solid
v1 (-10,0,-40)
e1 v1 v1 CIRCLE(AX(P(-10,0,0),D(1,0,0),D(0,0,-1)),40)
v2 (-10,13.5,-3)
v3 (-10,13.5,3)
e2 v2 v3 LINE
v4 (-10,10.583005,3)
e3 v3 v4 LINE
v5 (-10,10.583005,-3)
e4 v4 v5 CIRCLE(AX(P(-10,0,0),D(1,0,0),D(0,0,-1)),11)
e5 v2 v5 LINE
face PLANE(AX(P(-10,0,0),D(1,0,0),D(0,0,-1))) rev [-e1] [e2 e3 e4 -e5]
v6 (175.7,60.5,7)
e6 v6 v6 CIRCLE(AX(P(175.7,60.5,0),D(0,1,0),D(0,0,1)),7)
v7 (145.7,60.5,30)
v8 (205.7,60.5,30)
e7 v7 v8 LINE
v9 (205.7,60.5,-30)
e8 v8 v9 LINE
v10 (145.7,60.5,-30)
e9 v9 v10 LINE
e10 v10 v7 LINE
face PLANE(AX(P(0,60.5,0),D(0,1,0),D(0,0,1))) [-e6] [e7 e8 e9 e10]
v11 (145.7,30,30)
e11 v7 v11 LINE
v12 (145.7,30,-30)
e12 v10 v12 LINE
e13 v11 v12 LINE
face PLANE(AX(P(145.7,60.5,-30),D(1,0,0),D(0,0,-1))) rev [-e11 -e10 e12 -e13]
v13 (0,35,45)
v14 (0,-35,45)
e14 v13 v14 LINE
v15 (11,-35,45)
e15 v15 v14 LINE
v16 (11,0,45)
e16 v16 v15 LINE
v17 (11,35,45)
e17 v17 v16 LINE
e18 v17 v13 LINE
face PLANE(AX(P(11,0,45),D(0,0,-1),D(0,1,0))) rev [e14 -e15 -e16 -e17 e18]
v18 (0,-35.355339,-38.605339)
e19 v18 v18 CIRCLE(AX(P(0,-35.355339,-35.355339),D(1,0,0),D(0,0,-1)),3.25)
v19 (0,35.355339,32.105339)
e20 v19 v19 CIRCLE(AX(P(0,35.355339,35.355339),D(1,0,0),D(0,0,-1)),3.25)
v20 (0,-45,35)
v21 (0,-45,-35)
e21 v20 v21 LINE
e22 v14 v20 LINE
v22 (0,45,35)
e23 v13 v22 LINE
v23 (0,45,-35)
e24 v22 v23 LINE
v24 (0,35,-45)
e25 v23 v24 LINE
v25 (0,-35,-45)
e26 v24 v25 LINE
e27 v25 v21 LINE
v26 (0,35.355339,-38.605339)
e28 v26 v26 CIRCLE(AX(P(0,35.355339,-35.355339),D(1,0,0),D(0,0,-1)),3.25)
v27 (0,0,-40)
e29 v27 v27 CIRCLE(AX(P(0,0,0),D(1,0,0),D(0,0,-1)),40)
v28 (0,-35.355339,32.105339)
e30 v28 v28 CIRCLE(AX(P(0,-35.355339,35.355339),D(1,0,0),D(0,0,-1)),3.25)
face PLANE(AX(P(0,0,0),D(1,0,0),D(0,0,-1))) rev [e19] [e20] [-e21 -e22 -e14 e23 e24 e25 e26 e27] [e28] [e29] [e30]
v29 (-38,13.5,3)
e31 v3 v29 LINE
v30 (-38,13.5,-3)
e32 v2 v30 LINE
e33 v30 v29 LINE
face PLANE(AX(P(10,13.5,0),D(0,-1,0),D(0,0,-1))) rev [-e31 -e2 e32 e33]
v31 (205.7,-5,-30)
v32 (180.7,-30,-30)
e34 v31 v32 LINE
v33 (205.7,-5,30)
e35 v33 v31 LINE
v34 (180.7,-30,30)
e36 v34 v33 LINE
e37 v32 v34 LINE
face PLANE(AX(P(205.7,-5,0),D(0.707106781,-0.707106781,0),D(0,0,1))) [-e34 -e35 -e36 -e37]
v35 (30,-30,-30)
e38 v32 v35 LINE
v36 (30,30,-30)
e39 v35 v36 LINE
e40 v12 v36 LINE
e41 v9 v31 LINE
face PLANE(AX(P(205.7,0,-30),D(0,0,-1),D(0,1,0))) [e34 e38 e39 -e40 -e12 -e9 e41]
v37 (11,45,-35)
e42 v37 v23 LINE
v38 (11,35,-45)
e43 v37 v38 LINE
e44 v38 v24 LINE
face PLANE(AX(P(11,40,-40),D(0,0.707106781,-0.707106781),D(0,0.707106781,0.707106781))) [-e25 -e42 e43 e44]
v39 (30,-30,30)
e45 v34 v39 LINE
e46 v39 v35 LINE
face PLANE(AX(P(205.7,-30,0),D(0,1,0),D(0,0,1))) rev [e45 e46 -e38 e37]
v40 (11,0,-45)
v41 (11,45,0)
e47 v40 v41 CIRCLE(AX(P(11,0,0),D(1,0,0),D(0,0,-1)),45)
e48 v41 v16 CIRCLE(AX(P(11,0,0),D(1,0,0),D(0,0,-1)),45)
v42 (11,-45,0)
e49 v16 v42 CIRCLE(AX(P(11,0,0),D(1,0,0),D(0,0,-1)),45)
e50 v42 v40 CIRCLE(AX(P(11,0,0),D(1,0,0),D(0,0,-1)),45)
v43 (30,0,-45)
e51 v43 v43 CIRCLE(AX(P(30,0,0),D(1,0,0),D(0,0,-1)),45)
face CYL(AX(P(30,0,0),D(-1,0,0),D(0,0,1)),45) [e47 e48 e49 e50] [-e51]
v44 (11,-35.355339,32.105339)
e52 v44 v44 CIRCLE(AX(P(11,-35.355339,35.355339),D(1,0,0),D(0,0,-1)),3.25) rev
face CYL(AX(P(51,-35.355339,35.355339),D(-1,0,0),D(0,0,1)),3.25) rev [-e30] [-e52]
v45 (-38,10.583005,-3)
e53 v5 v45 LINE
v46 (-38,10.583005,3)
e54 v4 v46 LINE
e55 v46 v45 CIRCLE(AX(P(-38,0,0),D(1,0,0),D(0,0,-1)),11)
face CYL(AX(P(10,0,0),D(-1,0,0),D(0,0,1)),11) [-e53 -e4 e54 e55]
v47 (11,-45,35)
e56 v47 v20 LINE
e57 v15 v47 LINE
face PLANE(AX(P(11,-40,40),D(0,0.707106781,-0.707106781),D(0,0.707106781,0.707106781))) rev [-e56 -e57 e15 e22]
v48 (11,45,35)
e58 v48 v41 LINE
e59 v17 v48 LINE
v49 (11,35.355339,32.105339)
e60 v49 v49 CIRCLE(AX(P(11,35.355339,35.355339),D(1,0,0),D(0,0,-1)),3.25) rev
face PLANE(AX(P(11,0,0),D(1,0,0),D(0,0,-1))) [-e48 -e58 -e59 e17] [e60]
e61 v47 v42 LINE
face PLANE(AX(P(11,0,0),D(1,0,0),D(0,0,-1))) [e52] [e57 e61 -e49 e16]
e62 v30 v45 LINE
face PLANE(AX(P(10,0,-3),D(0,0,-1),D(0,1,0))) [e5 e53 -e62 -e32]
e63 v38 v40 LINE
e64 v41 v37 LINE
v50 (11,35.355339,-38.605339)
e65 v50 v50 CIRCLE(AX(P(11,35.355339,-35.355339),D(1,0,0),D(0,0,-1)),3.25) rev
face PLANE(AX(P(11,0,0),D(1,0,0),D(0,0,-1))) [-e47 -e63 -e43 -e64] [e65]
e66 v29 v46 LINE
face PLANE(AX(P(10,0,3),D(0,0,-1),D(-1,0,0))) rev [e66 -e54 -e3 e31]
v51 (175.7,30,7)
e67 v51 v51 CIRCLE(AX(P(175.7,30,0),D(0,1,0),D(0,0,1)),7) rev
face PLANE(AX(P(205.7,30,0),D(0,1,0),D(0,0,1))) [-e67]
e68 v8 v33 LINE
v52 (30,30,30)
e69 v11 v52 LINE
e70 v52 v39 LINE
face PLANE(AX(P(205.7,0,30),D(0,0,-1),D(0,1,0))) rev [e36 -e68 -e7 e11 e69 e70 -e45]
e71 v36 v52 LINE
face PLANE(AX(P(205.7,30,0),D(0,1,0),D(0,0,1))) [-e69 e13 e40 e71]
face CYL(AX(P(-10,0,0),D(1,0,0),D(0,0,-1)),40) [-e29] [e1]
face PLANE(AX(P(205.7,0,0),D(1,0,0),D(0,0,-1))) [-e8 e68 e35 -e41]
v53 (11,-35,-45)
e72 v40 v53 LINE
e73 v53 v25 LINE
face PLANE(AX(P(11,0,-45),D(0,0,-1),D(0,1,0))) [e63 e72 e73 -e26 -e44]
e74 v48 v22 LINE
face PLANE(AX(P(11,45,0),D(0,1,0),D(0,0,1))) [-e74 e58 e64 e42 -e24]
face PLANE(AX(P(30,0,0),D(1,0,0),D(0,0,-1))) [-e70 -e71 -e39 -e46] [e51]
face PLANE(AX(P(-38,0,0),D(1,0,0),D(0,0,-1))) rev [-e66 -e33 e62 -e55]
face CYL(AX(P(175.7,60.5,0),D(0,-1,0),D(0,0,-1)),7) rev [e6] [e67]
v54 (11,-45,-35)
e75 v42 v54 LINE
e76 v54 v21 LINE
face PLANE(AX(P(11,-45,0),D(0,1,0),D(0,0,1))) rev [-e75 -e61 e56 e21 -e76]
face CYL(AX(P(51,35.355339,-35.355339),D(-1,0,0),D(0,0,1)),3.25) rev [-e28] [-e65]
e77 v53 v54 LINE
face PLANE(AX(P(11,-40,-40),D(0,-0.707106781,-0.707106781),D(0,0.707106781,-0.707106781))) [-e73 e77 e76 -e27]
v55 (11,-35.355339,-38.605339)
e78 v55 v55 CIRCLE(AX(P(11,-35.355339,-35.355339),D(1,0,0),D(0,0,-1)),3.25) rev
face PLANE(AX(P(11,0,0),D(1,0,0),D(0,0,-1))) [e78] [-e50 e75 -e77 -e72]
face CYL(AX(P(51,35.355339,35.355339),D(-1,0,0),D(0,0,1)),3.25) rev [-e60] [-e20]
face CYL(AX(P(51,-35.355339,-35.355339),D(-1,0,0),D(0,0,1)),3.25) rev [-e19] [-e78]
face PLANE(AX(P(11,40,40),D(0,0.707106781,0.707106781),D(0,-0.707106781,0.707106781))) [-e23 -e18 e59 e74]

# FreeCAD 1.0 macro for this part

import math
import FreeCAD as App
import Part
import Sketcher

V = App.Vector
Q = App.Units.Quantity


def edges_at(feature, points):
    """Names of the edges that pass closest to the given points."""
    edges = feature.Shape.Edges
    near = lambda p: min(range(len(edges)), key=lambda i: edges[i].distToShape(Part.Vertex(*p))[0])
    return sorted({f"Edge{near(p) + 1}" for p in points})

doc = App.newDocument("Part")
body = doc.addObject("PartDesign::Body", "Body")

sketch1 = doc.addObject("Sketcher::SketchObject", "Sketch")
body.addObject(sketch1)
sketch1.AttachmentSupport = (doc.YZ_Plane, [""])
sketch1.MapMode = "FlatFace"
sketch1.addGeometry([
    Part.ArcOfCircle(Part.Circle(V(0, 0, 0), V(0, 0, 1), 11), math.radians(-90), math.radians(-15.82662)),
    Part.LineSegment(V(10.583005, -3, 0), V(13.5, -3, 0)),
    Part.LineSegment(V(13.5, -3, 0), V(13.5, 3, 0)),
    Part.LineSegment(V(13.5, 3, 0), V(10.583005, 3, 0)),
    Part.ArcOfCircle(Part.Circle(V(0, 0, 0), V(0, 0, 1), 11), math.radians(15.82662), math.radians(270)),
], False)
sketch1.addConstraint([
    Sketcher.Constraint("Coincident", 0, 2, 1, 1),
    Sketcher.Constraint("Coincident", 1, 2, 2, 1),
    Sketcher.Constraint("Coincident", 2, 2, 3, 1),
    Sketcher.Constraint("Coincident", 3, 2, 4, 1),
    Sketcher.Constraint("Tangent", 4, 2, 0, 1),
    Sketcher.Constraint("Horizontal", 1),
    Sketcher.Constraint("Vertical", 2),
    Sketcher.Constraint("Horizontal", 3),
    Sketcher.Constraint("Coincident", 0, 3, -1, 1),
    Sketcher.Constraint("Equal", 0, 4),
    Sketcher.Constraint("PointOnObject", 4, 2, -2),
    Sketcher.Constraint("Vertical", 0, 2, 3, 2),
    Sketcher.Constraint("Radius", 0, Q("11 mm")),
    Sketcher.Constraint("DistanceY", 2, 1, 2, 2, Q("6 mm")),
    Sketcher.Constraint("DistanceX", -1, 1, 1, 2, Q("13.5 mm")),
])
pad1 = doc.addObject("PartDesign::Pad", "Pad")
body.addObject(pad1)
pad1.Profile = sketch1
pad1.Type = "TwoLengths"
pad1.Length = 10
pad1.Length2 = 38

sketch2 = doc.addObject("Sketcher::SketchObject", "Sketch001")
body.addObject(sketch2)
sketch2.AttachmentSupport = (doc.YZ_Plane, [""])
sketch2.MapMode = "FlatFace"
sketch2.addGeometry([
    Part.Circle(V(0, 0, 0), V(0, 0, 1), 40),
    Part.LineSegment(V(10.583005, 3, 0), V(13.5, 3, 0)),
    Part.LineSegment(V(13.5, 3, 0), V(13.5, -3, 0)),
    Part.LineSegment(V(13.5, -3, 0), V(10.583005, -3, 0)),
    Part.ArcOfCircle(Part.Circle(V(0, 0, 0), V(0, 0, 1), 11), math.radians(-90), math.radians(-15.82662)),
    Part.ArcOfCircle(Part.Circle(V(0, 0, 0), V(0, 0, 1), 11), math.radians(15.82662), math.radians(270)),
], False)
sketch2.addConstraint([
    Sketcher.Constraint("Coincident", 1, 2, 2, 1),
    Sketcher.Constraint("Coincident", 2, 2, 3, 1),
    Sketcher.Constraint("Coincident", 3, 2, 4, 2),
    Sketcher.Constraint("Tangent", 4, 1, 5, 2),
    Sketcher.Constraint("Coincident", 5, 1, 1, 1),
    Sketcher.Constraint("Horizontal", 1),
    Sketcher.Constraint("Vertical", 2),
    Sketcher.Constraint("Horizontal", 3),
    Sketcher.Constraint("Coincident", 0, 3, -1, 1),
    Sketcher.Constraint("Coincident", 4, 3, -1, 1),
    Sketcher.Constraint("Equal", 4, 5),
    Sketcher.Constraint("PointOnObject", 4, 1, -2),
    Sketcher.Constraint("Vertical", 3, 2, 5, 1),
    Sketcher.Constraint("Diameter", 0, Q("80 mm")),
    Sketcher.Constraint("Radius", 4, Q("11 mm")),
    Sketcher.Constraint("DistanceY", 2, 2, 2, 1, Q("6 mm")),
    Sketcher.Constraint("DistanceX", -1, 1, 1, 2, Q("13.5 mm")),
])
pad2 = doc.addObject("PartDesign::Pad", "Pad001")
body.addObject(pad2)
pad2.Profile = sketch2
pad2.Length = 10
pad2.Reversed = True
body2 = doc.addObject("PartDesign::Body", "Body001")

sketch3 = doc.addObject("Sketcher::SketchObject", "Sketch002")
body2.addObject(sketch3)
sketch3.AttachmentSupport = (doc.getObject("YZ_Plane001"), [""])
sketch3.MapMode = "FlatFace"
sketch3.addGeometry([
    Part.Circle(V(0, 0, 0), V(0, 0, 1), 45),
    Part.ArcOfCircle(Part.Circle(V(0, 0, 0), V(0, 0, 1), 11), math.radians(15.82662), math.radians(270)),
    Part.ArcOfCircle(Part.Circle(V(0, 0, 0), V(0, 0, 1), 11), math.radians(-15.82662), math.radians(15.82662)),
    Part.ArcOfCircle(Part.Circle(V(0, 0, 0), V(0, 0, 1), 11), math.radians(-90), math.radians(-15.82662)),
], False)
sketch3.addConstraint([
    Sketcher.Constraint("Tangent", 1, 1, 2, 2),
    Sketcher.Constraint("Tangent", 2, 1, 3, 2),
    Sketcher.Constraint("Tangent", 3, 1, 1, 2),
    Sketcher.Constraint("Coincident", 0, 3, -1, 1),
    Sketcher.Constraint("Coincident", 1, 3, -1, 1),
    Sketcher.Constraint("PointOnObject", 3, 1, -2),
    Sketcher.Constraint("Vertical", 1, 1, 2, 1),
    Sketcher.Constraint("Diameter", 0, Q("90 mm")),
    Sketcher.Constraint("Radius", 1, Q("11 mm")),
    Sketcher.Constraint("DistanceY", -1, 1, 1, 1, Q("3 mm")),
])
pad3 = doc.addObject("PartDesign::Pad", "Pad002")
body2.addObject(pad3)
pad3.Profile = sketch3
pad3.Length = 9
doc.recompute()

boolean = doc.addObject("PartDesign::Boolean", "Boolean")
body.addObject(boolean)
boolean.Type = "Fuse"
boolean.addObjects([body2])

sketch4 = doc.addObject("Sketcher::SketchObject", "Sketch003")
body.addObject(sketch4)
sketch4.AttachmentSupport = (doc.YZ_Plane, [""])
sketch4.MapMode = "FlatFace"
sketch4.addGeometry([
    Part.Circle(V(0, 0, 0), V(0, 0, 1), 45),
    Part.LineSegment(V(-30, -30, 0), V(-30, 30, 0)),
    Part.LineSegment(V(-30, 30, 0), V(30, 30, 0)),
    Part.LineSegment(V(30, 30, 0), V(30, -30, 0)),
    Part.LineSegment(V(30, -30, 0), V(-30, -30, 0)),
], False)
sketch4.addConstraint([
    Sketcher.Constraint("Coincident", 1, 2, 2, 1),
    Sketcher.Constraint("Coincident", 2, 2, 3, 1),
    Sketcher.Constraint("Coincident", 3, 2, 4, 1),
    Sketcher.Constraint("Coincident", 4, 2, 1, 1),
    Sketcher.Constraint("Vertical", 1),
    Sketcher.Constraint("Horizontal", 2),
    Sketcher.Constraint("Vertical", 3),
    Sketcher.Constraint("Horizontal", 4),
    Sketcher.Constraint("Coincident", 0, 3, -1, 1),
    Sketcher.Constraint("Symmetric", 1, 2, 3, 2, -1, 1),
    Sketcher.Constraint("Equal", 4, 1),
    Sketcher.Constraint("Diameter", 0, Q("90 mm")),
    Sketcher.Constraint("DistanceX", 2, 1, 2, 2, Q("60 mm")),
])
pad4 = doc.addObject("PartDesign::Pad", "Pad003")
body.addObject(pad4)
pad4.Profile = sketch4
pad4.Length = 30

sketch5 = doc.addObject("Sketcher::SketchObject", "Sketch004")
body.addObject(sketch5)
sketch5.AttachmentSupport = (doc.YZ_Plane, [""])
sketch5.MapMode = "FlatFace"
sketch5.addGeometry([
    Part.LineSegment(V(30, 30, 0), V(-30, 30, 0)),
    Part.LineSegment(V(-30, 30, 0), V(-30, -30, 0)),
    Part.LineSegment(V(-30, -30, 0), V(30, -30, 0)),
    Part.LineSegment(V(30, -30, 0), V(30, 30, 0)),
], False)
sketch5.addConstraint([
    Sketcher.Constraint("Coincident", 0, 2, 1, 1),
    Sketcher.Constraint("Coincident", 1, 2, 2, 1),
    Sketcher.Constraint("Coincident", 2, 2, 3, 1),
    Sketcher.Constraint("Coincident", 3, 2, 0, 1),
    Sketcher.Constraint("Horizontal", 0),
    Sketcher.Constraint("Vertical", 1),
    Sketcher.Constraint("Horizontal", 2),
    Sketcher.Constraint("Vertical", 3),
    Sketcher.Constraint("Symmetric", 0, 2, 2, 2, -1, 1),
    Sketcher.Constraint("Equal", 2, 1),
    Sketcher.Constraint("DistanceX", 0, 2, 0, 1, Q("60 mm")),
])
pad5 = doc.addObject("PartDesign::Pad", "Pad004")
body.addObject(pad5)
pad5.Profile = sketch5
pad5.Length = 205.7

sketch6 = doc.addObject("Sketcher::SketchObject", "Sketch005")
body.addObject(sketch6)
sketch6.AttachmentSupport = (doc.XZ_Plane, [""])
sketch6.MapMode = "FlatFace"
sketch6.addGeometry([
    Part.LineSegment(V(145.7, -30, 0), V(145.7, 30, 0)),
    Part.LineSegment(V(145.7, 30, 0), V(205.7, 30, 0)),
    Part.LineSegment(V(205.7, 30, 0), V(205.7, -30, 0)),
    Part.LineSegment(V(205.7, -30, 0), V(145.7, -30, 0)),
    Part.Circle(V(175.7, 0, 0), V(0, 0, 1), 7),
], False)
sketch6.addConstraint([
    Sketcher.Constraint("Coincident", 0, 2, 1, 1),
    Sketcher.Constraint("Coincident", 1, 2, 2, 1),
    Sketcher.Constraint("Coincident", 2, 2, 3, 1),
    Sketcher.Constraint("Coincident", 3, 2, 0, 1),
    Sketcher.Constraint("Vertical", 0),
    Sketcher.Constraint("Horizontal", 1),
    Sketcher.Constraint("Vertical", 2),
    Sketcher.Constraint("Horizontal", 3),
    Sketcher.Constraint("PointOnObject", 4, 3, -1),
    Sketcher.Constraint("Equal", 3, 0),
    Sketcher.Constraint("Diameter", 4, Q("14 mm")),
    Sketcher.Constraint("DistanceX", 1, 1, 1, 2, Q("60 mm")),
    Sketcher.Constraint("DistanceY", -1, 1, 0, 2, Q("30 mm")),
    Sketcher.Constraint("DistanceX", 0, 2, 4, 3, Q("30 mm")),
    Sketcher.Constraint("DistanceX", -1, 1, 4, 3, Q("175.7 mm")),
])
pad6 = doc.addObject("PartDesign::Pad", "Pad005")
body.addObject(pad6)
pad6.Profile = sketch6
pad6.Length = 60.5
pad6.Reversed = True
doc.recompute()

chamfer = doc.addObject("PartDesign::Chamfer", "Chamfer")
body.addObject(chamfer)
chamfer.Base = (pad6, edges_at(pad6, [(205.7, -30, 0)]))
chamfer.Size = 25

sketch7 = doc.addObject("Sketcher::SketchObject", "Sketch006")
body.addObject(sketch7)
sketch7.AttachmentSupport = (doc.YZ_Plane, [""])
sketch7.MapMode = "FlatFace"
sketch7.addGeometry([
    Part.LineSegment(V(35, -45, 0), V(45, -35, 0)),
    Part.LineSegment(V(45, -35, 0), V(45, 35, 0)),
    Part.LineSegment(V(45, 35, 0), V(35, 45, 0)),
    Part.LineSegment(V(35, 45, 0), V(-35, 45, 0)),
    Part.LineSegment(V(-35, 45, 0), V(-45, 35, 0)),
    Part.LineSegment(V(-45, 35, 0), V(-45, -35, 0)),
    Part.LineSegment(V(-45, -35, 0), V(-35, -45, 0)),
    Part.LineSegment(V(-35, -45, 0), V(35, -45, 0)),
], False)
sketch7.addConstraint([
    Sketcher.Constraint("Coincident", 0, 2, 1, 1),
    Sketcher.Constraint("Coincident", 1, 2, 2, 1),
    Sketcher.Constraint("Coincident", 2, 2, 3, 1),
    Sketcher.Constraint("Coincident", 3, 2, 4, 1),
    Sketcher.Constraint("Coincident", 4, 2, 5, 1),
    Sketcher.Constraint("Coincident", 5, 2, 6, 1),
    Sketcher.Constraint("Coincident", 6, 2, 7, 1),
    Sketcher.Constraint("Coincident", 7, 2, 0, 1),
    Sketcher.Constraint("Vertical", 1),
    Sketcher.Constraint("Horizontal", 3),
    Sketcher.Constraint("Vertical", 5),
    Sketcher.Constraint("Horizontal", 7),
    Sketcher.Constraint("Symmetric", 0, 2, 4, 2, -1, 1),
    Sketcher.Constraint("Symmetric", 2, 2, 6, 2, -1, 1),
    Sketcher.Constraint("Perpendicular", 0, 2),
    Sketcher.Constraint("Perpendicular", 2, 4),
    Sketcher.Constraint("Perpendicular", 4, 6),
    Sketcher.Constraint("Horizontal", 1, 2, 4, 2),
    Sketcher.Constraint("Vertical", 3, 2, 6, 2),
    Sketcher.Constraint("Equal", 7, 1),
    Sketcher.Constraint("DistanceX", 3, 2, 3, 1, Q("70 mm")),
    Sketcher.Constraint("DistanceX", -1, 1, 0, 2, Q("45 mm")),
])
pad7 = doc.addObject("PartDesign::Pad", "Pad006")
body.addObject(pad7)
pad7.Profile = sketch7
pad7.Length = 11

sketch8 = doc.addObject("Sketcher::SketchObject", "Sketch007")
body.addObject(sketch8)
sketch8.AttachmentSupport = (doc.YZ_Plane, [""])
sketch8.MapMode = "FlatFace"
sketch8.addGeometry([
    Part.Circle(V(35.355339, -35.355339, 0), V(0, 0, 1), 3.25),
    Part.Circle(V(35.355339, 35.355339, 0), V(0, 0, 1), 3.25),
    Part.Circle(V(-35.355339, -35.355339, 0), V(0, 0, 1), 3.25),
    Part.Circle(V(-35.355339, 35.355339, 0), V(0, 0, 1), 3.25),
], False)
sketch8.addConstraint([
    Sketcher.Constraint("Equal", 0, 1),
    Sketcher.Constraint("Equal", 1, 2),
    Sketcher.Constraint("Equal", 2, 3),
    Sketcher.Constraint("Symmetric", 1, 3, 2, 3, -1, 1),
    Sketcher.Constraint("Symmetric", 0, 3, 3, 3, -1, 1),
    Sketcher.Constraint("Symmetric", 0, 3, 2, 3, -2),
    Sketcher.Constraint("Diameter", 0, Q("6.5 mm")),
    Sketcher.Constraint("DistanceX", -1, 1, 0, 3, Q("35.355339 mm")),
    Sketcher.Constraint("DistanceY", 0, 3, -1, 1, Q("35.355339 mm")),
])
pocket1 = doc.addObject("PartDesign::Pocket", "Pocket")
body.addObject(pocket1)
pocket1.Profile = sketch8
pocket1.Length = 51
pocket1.Reversed = True

doc.recompute()
